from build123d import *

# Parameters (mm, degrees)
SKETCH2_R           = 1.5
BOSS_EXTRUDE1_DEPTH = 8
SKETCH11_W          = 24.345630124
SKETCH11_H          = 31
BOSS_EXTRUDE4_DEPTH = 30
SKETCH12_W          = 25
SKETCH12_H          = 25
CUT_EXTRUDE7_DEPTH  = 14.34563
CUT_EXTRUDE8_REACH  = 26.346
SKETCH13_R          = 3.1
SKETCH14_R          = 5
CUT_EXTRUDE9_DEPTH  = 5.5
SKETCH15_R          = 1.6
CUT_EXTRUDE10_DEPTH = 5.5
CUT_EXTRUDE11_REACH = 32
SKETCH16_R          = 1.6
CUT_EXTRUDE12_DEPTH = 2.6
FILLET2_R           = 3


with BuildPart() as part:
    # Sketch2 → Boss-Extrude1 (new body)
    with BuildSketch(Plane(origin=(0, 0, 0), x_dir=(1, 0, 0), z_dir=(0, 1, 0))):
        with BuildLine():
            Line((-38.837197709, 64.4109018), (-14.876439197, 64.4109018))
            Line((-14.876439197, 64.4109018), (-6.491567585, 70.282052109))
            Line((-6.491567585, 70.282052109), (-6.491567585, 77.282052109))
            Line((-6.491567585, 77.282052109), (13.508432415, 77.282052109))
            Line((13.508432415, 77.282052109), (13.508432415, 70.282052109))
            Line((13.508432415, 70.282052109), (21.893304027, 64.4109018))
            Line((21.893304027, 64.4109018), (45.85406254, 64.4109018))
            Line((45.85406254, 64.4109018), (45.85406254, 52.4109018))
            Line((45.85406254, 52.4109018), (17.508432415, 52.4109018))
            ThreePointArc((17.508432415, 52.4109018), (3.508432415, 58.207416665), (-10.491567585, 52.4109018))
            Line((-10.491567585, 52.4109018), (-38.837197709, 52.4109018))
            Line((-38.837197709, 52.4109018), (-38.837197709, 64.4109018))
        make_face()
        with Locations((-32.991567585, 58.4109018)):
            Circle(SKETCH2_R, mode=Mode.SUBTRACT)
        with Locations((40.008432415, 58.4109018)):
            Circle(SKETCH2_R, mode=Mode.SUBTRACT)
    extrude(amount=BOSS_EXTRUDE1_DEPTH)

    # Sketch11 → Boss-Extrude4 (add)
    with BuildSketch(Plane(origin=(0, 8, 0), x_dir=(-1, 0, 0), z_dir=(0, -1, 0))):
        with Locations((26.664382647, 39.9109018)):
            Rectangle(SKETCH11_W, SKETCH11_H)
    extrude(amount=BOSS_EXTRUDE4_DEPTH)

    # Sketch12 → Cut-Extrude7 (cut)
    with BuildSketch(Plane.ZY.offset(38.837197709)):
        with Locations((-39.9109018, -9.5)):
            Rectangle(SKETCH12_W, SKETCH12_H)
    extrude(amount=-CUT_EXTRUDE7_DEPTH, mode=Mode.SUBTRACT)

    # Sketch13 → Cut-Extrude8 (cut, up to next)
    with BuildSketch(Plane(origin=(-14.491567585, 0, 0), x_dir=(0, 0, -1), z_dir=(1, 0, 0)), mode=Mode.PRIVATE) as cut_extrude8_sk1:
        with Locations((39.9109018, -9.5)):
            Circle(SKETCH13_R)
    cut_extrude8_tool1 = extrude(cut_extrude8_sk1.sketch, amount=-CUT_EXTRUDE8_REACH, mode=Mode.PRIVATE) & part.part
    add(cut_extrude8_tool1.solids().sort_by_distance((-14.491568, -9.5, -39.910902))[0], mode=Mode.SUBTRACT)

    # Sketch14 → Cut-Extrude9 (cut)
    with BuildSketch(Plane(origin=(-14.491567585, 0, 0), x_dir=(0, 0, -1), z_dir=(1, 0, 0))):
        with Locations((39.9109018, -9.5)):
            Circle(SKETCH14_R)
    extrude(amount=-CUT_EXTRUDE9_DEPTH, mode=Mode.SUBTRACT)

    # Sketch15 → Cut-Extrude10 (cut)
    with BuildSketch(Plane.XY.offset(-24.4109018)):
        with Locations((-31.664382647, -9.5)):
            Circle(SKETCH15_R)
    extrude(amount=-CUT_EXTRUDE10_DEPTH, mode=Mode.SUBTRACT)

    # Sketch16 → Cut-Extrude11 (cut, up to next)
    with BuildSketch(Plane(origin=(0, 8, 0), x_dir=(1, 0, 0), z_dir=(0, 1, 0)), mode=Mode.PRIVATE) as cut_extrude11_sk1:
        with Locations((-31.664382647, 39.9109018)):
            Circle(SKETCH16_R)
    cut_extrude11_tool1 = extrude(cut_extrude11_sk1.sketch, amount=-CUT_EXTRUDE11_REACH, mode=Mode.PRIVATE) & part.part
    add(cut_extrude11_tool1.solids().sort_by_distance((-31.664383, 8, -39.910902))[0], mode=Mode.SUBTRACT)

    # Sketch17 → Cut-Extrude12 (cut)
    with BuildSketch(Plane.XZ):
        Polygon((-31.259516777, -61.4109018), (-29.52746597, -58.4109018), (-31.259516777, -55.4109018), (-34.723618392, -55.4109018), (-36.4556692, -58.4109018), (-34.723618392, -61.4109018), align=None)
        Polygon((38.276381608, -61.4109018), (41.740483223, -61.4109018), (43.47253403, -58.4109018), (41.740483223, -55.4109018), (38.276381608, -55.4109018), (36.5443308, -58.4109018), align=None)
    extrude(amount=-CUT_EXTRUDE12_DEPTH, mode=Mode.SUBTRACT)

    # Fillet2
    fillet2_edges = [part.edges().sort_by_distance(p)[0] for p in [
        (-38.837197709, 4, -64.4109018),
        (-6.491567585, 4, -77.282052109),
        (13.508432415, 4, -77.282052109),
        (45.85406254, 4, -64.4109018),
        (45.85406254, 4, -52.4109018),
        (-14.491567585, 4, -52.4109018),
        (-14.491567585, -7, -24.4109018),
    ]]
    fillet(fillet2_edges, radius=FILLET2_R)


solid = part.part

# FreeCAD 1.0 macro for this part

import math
import FreeCAD as App
import Part
import Sketcher

V = App.Vector
Q = App.Units.Quantity


def edges_at(feature, points):
    """Names of the edges that pass closest to the given points."""
    edges = feature.Shape.Edges
    near = lambda p: min(range(len(edges)), key=lambda i: edges[i].distToShape(Part.Vertex(*p))[0])
    return sorted({f"Edge{near(p) + 1}" for p in points})

doc = App.newDocument("Part")
body = doc.addObject("PartDesign::Body", "Body")

sketch1 = body.newObject("Sketcher::SketchObject", "Sketch")
sketch1.AttachmentSupport = (doc.getObject("XZ_Plane"), [""])
sketch1.MapMode = "FlatFace"
sketch1.addGeometry([
    Part.LineSegment(V(-14.876439, -64.410902, 0), V(-38.837198, -64.410902, 0)),
    Part.LineSegment(V(-38.837198, -64.410902, 0), V(-38.837198, -52.410902, 0)),
    Part.LineSegment(V(-38.837198, -52.410902, 0), V(-10.491568, -52.410902, 0)),
    Part.ArcOfCircle(Part.Circle(V(3.508432, -38.402449, 0), V(0, 0, 1), 19.804968), math.radians(-134.982707), math.radians(-45.017293)),
    Part.LineSegment(V(17.508432, -52.410902, 0), V(45.854063, -52.410902, 0)),
    Part.LineSegment(V(45.854063, -52.410902, 0), V(45.854063, -64.410902, 0)),
    Part.LineSegment(V(45.854063, -64.410902, 0), V(21.893304, -64.410902, 0)),
    Part.LineSegment(V(21.893304, -64.410902, 0), V(13.508432, -70.282052, 0)),
    Part.LineSegment(V(13.508432, -70.282052, 0), V(13.508432, -77.282052, 0)),
    Part.LineSegment(V(13.508432, -77.282052, 0), V(-6.491568, -77.282052, 0)),
    Part.LineSegment(V(-6.491568, -77.282052, 0), V(-6.491568, -70.282052, 0)),
    Part.LineSegment(V(-6.491568, -70.282052, 0), V(-14.876439, -64.410902, 0)),
    Part.Circle(V(40.008432, -58.410902, 0), V(0, 0, 1), 1.5),
    Part.Circle(V(-32.991568, -58.410902, 0), V(0, 0, 1), 1.5),
], False)
sketch1.addConstraint([
    Sketcher.Constraint("Coincident", 0, 2, 1, 1),
    Sketcher.Constraint("Coincident", 1, 2, 2, 1),
    Sketcher.Constraint("Coincident", 2, 2, 3, 1),
    Sketcher.Constraint("Coincident", 3, 2, 4, 1),
    Sketcher.Constraint("Coincident", 4, 2, 5, 1),
    Sketcher.Constraint("Coincident", 5, 2, 6, 1),
    Sketcher.Constraint("Coincident", 6, 2, 7, 1),
    Sketcher.Constraint("Coincident", 7, 2, 8, 1),
    Sketcher.Constraint("Coincident", 8, 2, 9, 1),
    Sketcher.Constraint("Coincident", 9, 2, 10, 1),
    Sketcher.Constraint("Coincident", 10, 2, 11, 1),
    Sketcher.Constraint("Coincident", 11, 2, 0, 1),
    Sketcher.Constraint("Horizontal", 0),
    Sketcher.Constraint("Vertical", 1),
    Sketcher.Constraint("Horizontal", 2),
    Sketcher.Constraint("Horizontal", 4),
    Sketcher.Constraint("Vertical", 5),
    Sketcher.Constraint("Horizontal", 6),
    Sketcher.Constraint("Vertical", 8),
    Sketcher.Constraint("Horizontal", 9),
    Sketcher.Constraint("Vertical", 10),
    Sketcher.Constraint("Equal", 12, 13),
    Sketcher.Constraint("Horizontal", 12, 3, 13, 3),
    Sketcher.Constraint("Horizontal", 2, 2, 3, 2),
    Sketcher.Constraint("Horizontal", 0, 2, 5, 2),
    Sketcher.Constraint("Horizontal", 7, 2, 10, 2),
    Sketcher.Constraint("Equal", 2, 4),
    Sketcher.Constraint("Equal", 0, 6),
    Sketcher.Constraint("Equal", 7, 11),
    Sketcher.Constraint("Diameter", 12, Q("3 mm")),
    Sketcher.Constraint("DistanceX", 9, 2, 9, 1, Q("20 mm")),
    Sketcher.Constraint("DistanceY", 1, 1, 1, 2, Q("12 mm")),
    Sketcher.Constraint("DistanceY", 8, 2, 8, 1, Q("7 mm")),
    Sketcher.Constraint("Angle", 7, Q("-145 deg")),
    Sketcher.Constraint("DistanceX", 13, 3, 12, 3, Q("73 mm")),
    Sketcher.Constraint("DistanceY", 0, 2, 13, 3, Q("6 mm")),
    Sketcher.Constraint("DistanceX", 2, 2, 3, 3, Q("14 mm")),
    Sketcher.Constraint("DistanceX", 3, 3, 12, 3, Q("36.5 mm")),
    Sketcher.Constraint("Radius", 3, Q("19.804968 mm")),
    Sketcher.Constraint("DistanceX", 0, 2, 0, 1, Q("23.960759 mm")),
    Sketcher.Constraint("DistanceX", 2, 1, 2, 2, Q("28.34563 mm")),
    Sketcher.Constraint("DistanceY", 12, 3, -1, 1, Q("58.410902 mm")),
    Sketcher.Constraint("DistanceX", 11, 2, -1, 1, Q("14.876439 mm")),
])
pad1 = body.newObject("PartDesign::Pad", "Pad")
pad1.Profile = sketch1
pad1.Length = 8
pad1.Reversed = True

sketch2 = body.newObject("Sketcher::SketchObject", "Sketch001")
sketch2.AttachmentSupport = (doc.getObject("XZ_Plane"), [""])
sketch2.MapMode = "FlatFace"
sketch2.AttachmentOffset = App.Placement(V(0, 0, -8), App.Rotation())
sketch2.addGeometry([
    Part.LineSegment(V(-14.491568, -55.410902, 0), V(-14.491568, -24.410902, 0)),
    Part.LineSegment(V(-14.491568, -24.410902, 0), V(-38.837198, -24.410902, 0)),
    Part.LineSegment(V(-38.837198, -24.410902, 0), V(-38.837198, -55.410902, 0)),
    Part.LineSegment(V(-38.837198, -55.410902, 0), V(-14.491568, -55.410902, 0)),
], False)
sketch2.addConstraint([
    Sketcher.Constraint("Coincident", 0, 2, 1, 1),
    Sketcher.Constraint("Coincident", 1, 2, 2, 1),
    Sketcher.Constraint("Coincident", 2, 2, 3, 1),
    Sketcher.Constraint("Coincident", 3, 2, 0, 1),
    Sketcher.Constraint("Vertical", 0),
    Sketcher.Constraint("Horizontal", 1),
    Sketcher.Constraint("Vertical", 2),
    Sketcher.Constraint("Horizontal", 3),
    Sketcher.Constraint("DistanceY", 0, 1, 0, 2, Q("31 mm")),
    Sketcher.Constraint("DistanceX", 1, 2, 1, 1, Q("24.34563 mm")),
    Sketcher.Constraint("DistanceY", 0, 2, -1, 1, Q("24.410902 mm")),
    Sketcher.Constraint("DistanceX", 0, 2, -1, 1, Q("14.491568 mm")),
])
pad2 = body.newObject("PartDesign::Pad", "Pad001")
pad2.Profile = sketch2
pad2.Length = 30

sketch3 = body.newObject("Sketcher::SketchObject", "Sketch002")
sketch3.AttachmentSupport = (doc.getObject("YZ_Plane"), [""])
sketch3.MapMode = "FlatFace"
sketch3.AttachmentOffset = App.Placement(V(0, 0, -38.837198), App.Rotation())
sketch3.addGeometry([
    Part.LineSegment(V(3, -52.410902, 0), V(-22, -52.410902, 0)),
    Part.LineSegment(V(-22, -52.410902, 0), V(-22, -27.410902, 0)),
    Part.LineSegment(V(-22, -27.410902, 0), V(3, -27.410902, 0)),
    Part.LineSegment(V(3, -27.410902, 0), V(3, -52.410902, 0)),
], False)
sketch3.addConstraint([
    Sketcher.Constraint("Coincident", 0, 2, 1, 1),
    Sketcher.Constraint("Coincident", 1, 2, 2, 1),
    Sketcher.Constraint("Coincident", 2, 2, 3, 1),
    Sketcher.Constraint("Coincident", 3, 2, 0, 1),
    Sketcher.Constraint("Horizontal", 0),
    Sketcher.Constraint("Vertical", 1),
    Sketcher.Constraint("Horizontal", 2),
    Sketcher.Constraint("Vertical", 3),
    Sketcher.Constraint("Equal", 2, 1),
    Sketcher.Constraint("DistanceX", 0, 2, 0, 1, Q("25 mm")),
    Sketcher.Constraint("DistanceX", 0, 2, -1, 1, Q("22 mm")),
    Sketcher.Constraint("DistanceY", 0, 2, -1, 1, Q("52.410902 mm")),
])
pocket1 = body.newObject("PartDesign::Pocket", "Pocket")
pocket1.Profile = sketch3
pocket1.Length = 14.34563
pocket1.Reversed = True

sketch4 = body.newObject("Sketcher::SketchObject", "Sketch003")
sketch4.AttachmentSupport = (doc.getObject("YZ_Plane"), [""])
sketch4.MapMode = "FlatFace"
sketch4.AttachmentOffset = App.Placement(V(0, 0, -14.491568), App.Rotation())
sketch4.addGeometry(Part.Circle(V(-9.5, -39.910902, 0), V(0, 0, 1), 3.1), False)
sketch4.addConstraint([
    Sketcher.Constraint("Diameter", 0, Q("6.2 mm")),
    Sketcher.Constraint("DistanceX", 0, 3, -1, 1, Q("9.5 mm")),
    Sketcher.Constraint("DistanceY", 0, 3, -1, 1, Q("39.910902 mm")),
])
pocket2 = body.newObject("PartDesign::Pocket", "Pocket001")
pocket2.Profile = sketch4
pocket2.Type = "UpToFirst"

sketch5 = body.newObject("Sketcher::SketchObject", "Sketch004")
sketch5.AttachmentSupport = (doc.getObject("YZ_Plane"), [""])
sketch5.MapMode = "FlatFace"
sketch5.AttachmentOffset = App.Placement(V(0, 0, -14.491568), App.Rotation())
sketch5.addGeometry(Part.Circle(V(-9.5, -39.910902, 0), V(0, 0, 1), 5), False)
sketch5.addConstraint([
    Sketcher.Constraint("Diameter", 0, Q("10 mm")),
    Sketcher.Constraint("DistanceX", 0, 3, -1, 1, Q("9.5 mm")),
    Sketcher.Constraint("DistanceY", 0, 3, -1, 1, Q("39.910902 mm")),
])
pocket3 = body.newObject("PartDesign::Pocket", "Pocket002")
pocket3.Profile = sketch5
pocket3.Length = 5.5

sketch6 = body.newObject("Sketcher::SketchObject", "Sketch005")
sketch6.AttachmentSupport = (doc.getObject("XY_Plane"), [""])
sketch6.MapMode = "FlatFace"
sketch6.AttachmentOffset = App.Placement(V(0, 0, -24.410902), App.Rotation())
sketch6.addGeometry(Part.Circle(V(-31.664383, -9.5, 0), V(0, 0, 1), 1.6), False)
sketch6.addConstraint([
    Sketcher.Constraint("Diameter", 0, Q("3.2 mm")),
    Sketcher.Constraint("DistanceY", 0, 3, -1, 1, Q("9.5 mm")),
    Sketcher.Constraint("DistanceX", 0, 3, -1, 1, Q("31.664383 mm")),
])
pocket4 = body.newObject("PartDesign::Pocket", "Pocket003")
pocket4.Profile = sketch6
pocket4.Length = 5.5

sketch7 = body.newObject("Sketcher::SketchObject", "Sketch006")
sketch7.AttachmentSupport = (doc.getObject("XZ_Plane"), [""])
sketch7.MapMode = "FlatFace"
sketch7.AttachmentOffset = App.Placement(V(0, 0, -8), App.Rotation())
sketch7.addGeometry(Part.Circle(V(-31.664383, -39.910902, 0), V(0, 0, 1), 1.6), False)
sketch7.addConstraint([
    Sketcher.Constraint("Diameter", 0, Q("3.2 mm")),
    Sketcher.Constraint("DistanceY", 0, 3, -1, 1, Q("39.910902 mm")),
    Sketcher.Constraint("DistanceX", 0, 3, -1, 1, Q("31.664383 mm")),
])
pocket5 = body.newObject("PartDesign::Pocket", "Pocket004")
pocket5.Profile = sketch7
pocket5.Type = "UpToFirst"
pocket5.Reversed = True

sketch8 = body.newObject("Sketcher::SketchObject", "Sketch007")
sketch8.AttachmentSupport = (doc.getObject("XZ_Plane"), [""])
sketch8.MapMode = "FlatFace"
sketch8.addGeometry([
    Part.LineSegment(V(-31.259517, -61.410902, 0), V(-29.527466, -58.410902, 0)),
    Part.LineSegment(V(-29.527466, -58.410902, 0), V(-31.259517, -55.410902, 0)),
    Part.LineSegment(V(-31.259517, -55.410902, 0), V(-34.723618, -55.410902, 0)),
    Part.LineSegment(V(-34.723618, -55.410902, 0), V(-36.455669, -58.410902, 0)),
    Part.LineSegment(V(-36.455669, -58.410902, 0), V(-34.723618, -61.410902, 0)),
    Part.LineSegment(V(-34.723618, -61.410902, 0), V(-31.259517, -61.410902, 0)),
    Part.LineSegment(V(38.276382, -61.410902, 0), V(41.740483, -61.410902, 0)),
    Part.LineSegment(V(41.740483, -61.410902, 0), V(43.472534, -58.410902, 0)),
    Part.LineSegment(V(43.472534, -58.410902, 0), V(41.740483, -55.410902, 0)),
    Part.LineSegment(V(41.740483, -55.410902, 0), V(38.276382, -55.410902, 0)),
    Part.LineSegment(V(38.276382, -55.410902, 0), V(36.544331, -58.410902, 0)),
    Part.LineSegment(V(36.544331, -58.410902, 0), V(38.276382, -61.410902, 0)),
], False)
sketch8.addConstraint([
    Sketcher.Constraint("Coincident", 0, 2, 1, 1),
    Sketcher.Constraint("Coincident", 1, 2, 2, 1),
    Sketcher.Constraint("Coincident", 2, 2, 3, 1),
    Sketcher.Constraint("Coincident", 3, 2, 4, 1),
    Sketcher.Constraint("Coincident", 4, 2, 5, 1),
    Sketcher.Constraint("Coincident", 5, 2, 0, 1),
    Sketcher.Constraint("Coincident", 6, 2, 7, 1),
    Sketcher.Constraint("Coincident", 7, 2, 8, 1),
    Sketcher.Constraint("Coincident", 8, 2, 9, 1),
    Sketcher.Constraint("Coincident", 9, 2, 10, 1),
    Sketcher.Constraint("Coincident", 10, 2, 11, 1),
    Sketcher.Constraint("Coincident", 11, 2, 6, 1),
    Sketcher.Constraint("Horizontal", 2),
    Sketcher.Constraint("Horizontal", 5),
    Sketcher.Constraint("Horizontal", 6),
    Sketcher.Constraint("Horizontal", 9),
    Sketcher.Constraint("Parallel", 0, 3),
    Sketcher.Constraint("Parallel", 1, 4),
    Sketcher.Constraint("Parallel", 3, 7),
    Sketcher.Constraint("Parallel", 4, 8),
    Sketcher.Constraint("Parallel", 7, 10),
    Sketcher.Constraint("Parallel", 8, 11),
    Sketcher.Constraint("Horizontal", 0, 2, 3, 2),
    Sketcher.Constraint("Horizontal", 5, 2, 6, 2),
    Sketcher.Constraint("Horizontal", 3, 2, 7, 2),
    Sketcher.Constraint("Horizontal", 2, 2, 8, 2),
    Sketcher.Constraint("Horizontal", 7, 2, 10, 2),
    Sketcher.Constraint("Vertical", 2, 2, 4, 2),
    Sketcher.Constraint("Vertical", 1, 2, 5, 2),
    Sketcher.Constraint("Equal", 5, 6),
    Sketcher.Constraint("Angle", 0, Q("60 deg")),
    Sketcher.Constraint("DistanceY", 0, 2, 1, 2, Q("3 mm")),
    Sketcher.Constraint("DistanceX", 5, 2, 6, 2, Q("73 mm")),
    Sketcher.Constraint("DistanceX", 2, 2, 2, 1, Q("3.464102 mm")),
    Sketcher.Constraint("DistanceY", 0, 2, -1, 1, Q("58.410902 mm")),
    Sketcher.Constraint("DistanceX", 2, 2, -1, 1, Q("34.723618 mm")),
])
pocket6 = body.newObject("PartDesign::Pocket", "Pocket005")
pocket6.Profile = sketch8
pocket6.Length = 2.6
doc.recompute()

fillet = body.newObject("PartDesign::Fillet", "Fillet")
fillet.Base = (pocket6, edges_at(pocket6, [
    (-38.837, 4, -64.411),
    (-6.492, 4, -77.282),
    (13.508, 4, -77.282),
    (45.854, 4, -64.411),
    (45.854, 4, -52.411),
    (-14.492, 4, -52.411),
    (-14.492, -7, -24.411),
]))
fillet.Radius = 3

doc.recompute()
